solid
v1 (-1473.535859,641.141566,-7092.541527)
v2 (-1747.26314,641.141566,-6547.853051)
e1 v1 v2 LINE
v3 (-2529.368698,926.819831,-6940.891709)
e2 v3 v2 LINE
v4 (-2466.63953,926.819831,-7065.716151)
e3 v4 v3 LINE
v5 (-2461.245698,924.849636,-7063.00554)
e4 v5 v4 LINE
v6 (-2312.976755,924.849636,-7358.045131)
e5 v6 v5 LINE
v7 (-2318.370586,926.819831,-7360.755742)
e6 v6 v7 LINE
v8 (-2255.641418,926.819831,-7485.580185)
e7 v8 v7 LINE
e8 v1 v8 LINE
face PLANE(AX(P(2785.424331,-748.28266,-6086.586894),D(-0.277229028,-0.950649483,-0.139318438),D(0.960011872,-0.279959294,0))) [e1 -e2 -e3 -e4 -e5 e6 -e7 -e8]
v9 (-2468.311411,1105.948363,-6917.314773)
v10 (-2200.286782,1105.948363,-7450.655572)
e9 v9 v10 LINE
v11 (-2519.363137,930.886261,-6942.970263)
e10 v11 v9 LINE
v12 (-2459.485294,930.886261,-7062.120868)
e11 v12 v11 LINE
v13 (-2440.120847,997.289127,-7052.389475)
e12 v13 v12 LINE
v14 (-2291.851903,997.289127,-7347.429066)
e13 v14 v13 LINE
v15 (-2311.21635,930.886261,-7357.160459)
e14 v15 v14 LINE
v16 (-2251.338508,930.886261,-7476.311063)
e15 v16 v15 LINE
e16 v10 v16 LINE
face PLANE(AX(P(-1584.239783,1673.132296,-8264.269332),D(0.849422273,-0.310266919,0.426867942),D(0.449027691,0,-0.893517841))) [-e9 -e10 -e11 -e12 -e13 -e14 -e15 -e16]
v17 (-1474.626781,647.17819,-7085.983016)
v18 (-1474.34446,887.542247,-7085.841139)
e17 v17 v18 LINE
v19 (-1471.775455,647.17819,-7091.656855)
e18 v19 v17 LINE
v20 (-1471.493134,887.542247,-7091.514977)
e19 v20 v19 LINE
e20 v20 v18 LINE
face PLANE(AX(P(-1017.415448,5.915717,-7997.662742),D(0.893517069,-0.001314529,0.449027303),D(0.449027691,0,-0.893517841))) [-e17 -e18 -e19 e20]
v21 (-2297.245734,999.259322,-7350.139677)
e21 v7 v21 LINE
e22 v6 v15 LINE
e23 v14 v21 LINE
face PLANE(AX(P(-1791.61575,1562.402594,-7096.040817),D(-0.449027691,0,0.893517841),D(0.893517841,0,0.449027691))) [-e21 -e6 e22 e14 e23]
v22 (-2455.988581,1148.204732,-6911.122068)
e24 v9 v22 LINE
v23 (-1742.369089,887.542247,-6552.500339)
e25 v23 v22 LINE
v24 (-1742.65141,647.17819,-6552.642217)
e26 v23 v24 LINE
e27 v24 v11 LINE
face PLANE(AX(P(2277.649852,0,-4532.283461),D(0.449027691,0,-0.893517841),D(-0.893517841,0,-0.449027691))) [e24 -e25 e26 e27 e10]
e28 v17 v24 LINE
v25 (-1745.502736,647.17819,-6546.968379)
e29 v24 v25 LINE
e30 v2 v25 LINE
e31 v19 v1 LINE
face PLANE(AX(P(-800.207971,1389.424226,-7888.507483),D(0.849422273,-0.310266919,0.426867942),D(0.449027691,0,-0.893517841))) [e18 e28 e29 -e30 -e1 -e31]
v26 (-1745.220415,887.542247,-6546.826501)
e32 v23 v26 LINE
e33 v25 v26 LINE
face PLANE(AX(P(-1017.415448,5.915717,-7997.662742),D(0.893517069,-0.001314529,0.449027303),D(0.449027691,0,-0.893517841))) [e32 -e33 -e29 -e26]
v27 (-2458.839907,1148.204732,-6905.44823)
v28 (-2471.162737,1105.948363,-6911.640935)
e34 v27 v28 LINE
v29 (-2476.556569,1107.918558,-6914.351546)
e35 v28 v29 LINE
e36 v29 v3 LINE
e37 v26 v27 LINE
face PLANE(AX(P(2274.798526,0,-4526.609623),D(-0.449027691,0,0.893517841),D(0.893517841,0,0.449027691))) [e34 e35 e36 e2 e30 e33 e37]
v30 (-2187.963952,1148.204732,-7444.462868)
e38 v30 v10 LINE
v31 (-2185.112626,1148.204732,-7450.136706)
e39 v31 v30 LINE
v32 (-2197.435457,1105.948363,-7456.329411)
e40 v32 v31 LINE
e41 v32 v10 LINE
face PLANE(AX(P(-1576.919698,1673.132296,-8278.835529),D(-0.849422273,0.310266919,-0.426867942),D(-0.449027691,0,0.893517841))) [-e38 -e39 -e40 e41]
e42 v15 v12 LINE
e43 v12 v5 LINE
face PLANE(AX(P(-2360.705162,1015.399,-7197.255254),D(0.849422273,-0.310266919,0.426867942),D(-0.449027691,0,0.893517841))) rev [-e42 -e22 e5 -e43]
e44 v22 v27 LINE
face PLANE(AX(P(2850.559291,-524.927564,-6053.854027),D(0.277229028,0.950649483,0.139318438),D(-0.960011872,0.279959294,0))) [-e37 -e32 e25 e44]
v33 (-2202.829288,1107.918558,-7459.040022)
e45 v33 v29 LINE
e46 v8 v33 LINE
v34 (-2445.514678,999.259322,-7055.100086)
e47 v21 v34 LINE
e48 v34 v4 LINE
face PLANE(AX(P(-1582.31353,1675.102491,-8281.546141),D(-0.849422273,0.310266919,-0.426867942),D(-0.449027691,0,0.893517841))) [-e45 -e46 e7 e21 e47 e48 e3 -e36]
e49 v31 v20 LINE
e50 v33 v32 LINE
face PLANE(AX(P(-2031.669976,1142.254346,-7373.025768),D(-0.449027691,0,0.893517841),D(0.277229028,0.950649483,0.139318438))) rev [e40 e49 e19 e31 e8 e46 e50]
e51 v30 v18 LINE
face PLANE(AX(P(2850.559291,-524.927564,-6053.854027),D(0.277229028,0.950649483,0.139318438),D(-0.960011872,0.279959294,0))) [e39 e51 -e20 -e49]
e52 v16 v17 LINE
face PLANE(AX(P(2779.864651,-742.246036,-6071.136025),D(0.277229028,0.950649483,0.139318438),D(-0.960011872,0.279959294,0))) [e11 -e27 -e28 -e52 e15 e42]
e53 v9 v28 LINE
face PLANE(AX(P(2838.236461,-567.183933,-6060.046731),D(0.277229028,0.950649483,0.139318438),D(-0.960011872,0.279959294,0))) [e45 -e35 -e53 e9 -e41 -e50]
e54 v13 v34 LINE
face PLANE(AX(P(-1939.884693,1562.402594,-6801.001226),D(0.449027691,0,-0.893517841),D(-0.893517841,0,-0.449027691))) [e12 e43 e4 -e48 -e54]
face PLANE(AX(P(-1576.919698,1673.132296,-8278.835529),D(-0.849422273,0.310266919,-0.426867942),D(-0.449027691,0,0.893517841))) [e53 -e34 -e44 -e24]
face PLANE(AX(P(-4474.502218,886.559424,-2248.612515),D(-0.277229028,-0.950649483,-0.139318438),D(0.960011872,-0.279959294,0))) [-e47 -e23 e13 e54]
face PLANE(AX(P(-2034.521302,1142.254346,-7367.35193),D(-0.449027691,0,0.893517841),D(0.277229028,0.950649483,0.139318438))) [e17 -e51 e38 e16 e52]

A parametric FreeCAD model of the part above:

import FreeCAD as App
import Part
import Sketcher
Q = App.Units.Quantity


def add_polygon(sketch, points):
    """Adds a closed chain of lines whose ends are joined by coincident constraints."""
    first, n = sketch.GeometryCount, len(points)
    for a, b in zip(points, points[1:] + points[:1]):
        sketch.addGeometry(Part.LineSegment(App.Vector(*a, 0), App.Vector(*b, 0)), False)
    for i in range(n):
        sketch.addConstraint(Sketcher.Constraint("Coincident", first + i, 2, first + (i + 1) % n, 1))

doc = App.newDocument("Part")
body = doc.addObject("PartDesign::Body", "Body")

sketch1 = body.newObject("Sketcher::SketchObject", "Sketch")
sketch1.Placement = App.Placement(App.Vector(2274.798526, 0, -4526.609623), App.Rotation(App.Vector(0.893517841, 0, 0.449027691), App.Vector(0, 0.999999999, 0), App.Vector(-0.449027691, 0, 0.893517841), "ZXY"))
add_polygon(sketch1, [(-4499, 647), (-4499, 888), (-5298, 1148), (-5312, 1106), (-5318, 1108), (-5377, 927), (-4501, 641)])
sketch1.addConstraint(Sketcher.Constraint("Perpendicular", 1, 2))
sketch1.addConstraint(Sketcher.Constraint("Perpendicular", 2, 3))
sketch1.addConstraint(Sketcher.Constraint("Perpendicular", 3, 4))
sketch1.addConstraint(Sketcher.Constraint("Perpendicular", 4, 5))
sketch1.addConstraint(Sketcher.Constraint("Perpendicular", 5, 6))
sketch1.addConstraint(Sketcher.Constraint("Equal", 3, 6))
sketch1.addConstraint(Sketcher.Constraint("Distance", 4, Q("7.5 in")))
sketch1.addConstraint(Sketcher.Constraint("Distance", 2, Q("1.75 in")))
sketch1.addConstraint(Sketcher.Constraint("Distance", 3, Q("0.25 in")))
sketch1.addConstraint(Sketcher.Constraint("Distance", 5, Q("36.25 in")))
sketch1.addConstraint(Sketcher.Constraint("DistanceX", 1, 2, -1, 1, Q("5297.754798 mm")))
sketch1.addConstraint(Sketcher.Constraint("DistanceX", 2, 2, 0, 2, Q("812.454199 mm")))
sketch1.addConstraint(Sketcher.Constraint("DistanceY", 4, 2, 1, 2, Q("221.384901 mm")))
sketch1.addConstraint(Sketcher.Constraint("DistanceY", -1, 1, 1, 2, Q("1148.204731 mm")))
pad1 = body.newObject("PartDesign::Pad", "Pad")
pad1.Profile = sketch1
pad1.Length = Q("24 in")
pad1.Reversed = True

sketch2 = body.newObject("Sketcher::SketchObject", "Sketch001")
sketch2.Placement = App.Placement(App.Vector(2277.649852, 0, -4532.283461), App.Rotation(App.Vector(-0.893517841, 0, -0.449027691), App.Vector(0, 0.999999999, 0), App.Vector(0.449027691, 0, -0.893517841), "ZXY"))
add_polygon(sketch2, [(5298, 1148), (4978, 1044), (4499, 888), (4499, 647), (5369, 931)])
sketch2.addConstraint(Sketcher.Constraint("Parallel", 0, 1))
sketch2.addConstraint(Sketcher.Constraint("Parallel", 1, 3))
sketch2.addConstraint(Sketcher.Constraint("Perpendicular", 3, 4))
sketch2.addConstraint(Sketcher.Constraint("Distance", 3, Q("36 in")))
sketch2.addConstraint(Sketcher.Constraint("Distance", 4, Q("9 in")))
sketch2.addConstraint(Sketcher.Constraint("Distance", 0, Q("13.25 in")))
sketch2.addConstraint(Sketcher.Constraint("DistanceY", -1, 1, 0, 2, Q("1043.7844 mm")))
sketch2.addConstraint(Sketcher.Constraint("DistanceX", -1, 1, 4, 2, Q("5297.754798 mm")))
sketch2.addConstraint(Sketcher.Constraint("DistanceX", 0, 2, 3, 2, Q("390.868101 mm")))
sketch2.addConstraint(Sketcher.Constraint("DistanceX", 1, 2, 0, 2, Q("478.721751 mm")))
pocket1 = body.newObject("PartDesign::Pocket", "Pocket")
pocket1.Profile = sketch2
pocket1.Length = Q("23.5 in")
pocket1.Reversed = True

sketch3 = body.newObject("Sketcher::SketchObject", "Sketch002")
sketch3.Placement = App.Placement(App.Vector(-4580.558711, 1673.132296, -2301.910055), App.Rotation(App.Vector(-0.400957134, 0.146456878, 0.904313972), App.Vector(0.343096456, 0.939300176, 0), App.Vector(-0.849422273, 0.310266919, -0.426867942), "ZXY"))
add_polygon(sketch3, [(-5579, 150), (-5591, 75), (-5265, 24), (-5253, 100)])
sketch3.addConstraint(Sketcher.Constraint("Perpendicular", 0, 1))
sketch3.addConstraint(Sketcher.Constraint("Perpendicular", 1, 2))
sketch3.addConstraint(Sketcher.Constraint("Perpendicular", 2, 3))
sketch3.addConstraint(Sketcher.Constraint("Distance", 0, Q("3 in")))
sketch3.addConstraint(Sketcher.Constraint("Distance", 1, Q("13 in")))
sketch3.addConstraint(Sketcher.Constraint("DistanceX", 0, 2, 1, 2, Q("12.8447998 in")))
sketch3.addConstraint(Sketcher.Constraint("DistanceX", 0, 2, -1, 1, Q("5591.127899 mm")))
sketch3.addConstraint(Sketcher.Constraint("DistanceY", -1, 1, 0, 2, Q("75.137299 mm")))
pocket2 = body.newObject("PartDesign::Pocket", "Pocket001")
pocket2.Profile = sketch3
pocket2.Length = Q("0.25 in")
pocket2.Reversed = True

doc.recompute()
